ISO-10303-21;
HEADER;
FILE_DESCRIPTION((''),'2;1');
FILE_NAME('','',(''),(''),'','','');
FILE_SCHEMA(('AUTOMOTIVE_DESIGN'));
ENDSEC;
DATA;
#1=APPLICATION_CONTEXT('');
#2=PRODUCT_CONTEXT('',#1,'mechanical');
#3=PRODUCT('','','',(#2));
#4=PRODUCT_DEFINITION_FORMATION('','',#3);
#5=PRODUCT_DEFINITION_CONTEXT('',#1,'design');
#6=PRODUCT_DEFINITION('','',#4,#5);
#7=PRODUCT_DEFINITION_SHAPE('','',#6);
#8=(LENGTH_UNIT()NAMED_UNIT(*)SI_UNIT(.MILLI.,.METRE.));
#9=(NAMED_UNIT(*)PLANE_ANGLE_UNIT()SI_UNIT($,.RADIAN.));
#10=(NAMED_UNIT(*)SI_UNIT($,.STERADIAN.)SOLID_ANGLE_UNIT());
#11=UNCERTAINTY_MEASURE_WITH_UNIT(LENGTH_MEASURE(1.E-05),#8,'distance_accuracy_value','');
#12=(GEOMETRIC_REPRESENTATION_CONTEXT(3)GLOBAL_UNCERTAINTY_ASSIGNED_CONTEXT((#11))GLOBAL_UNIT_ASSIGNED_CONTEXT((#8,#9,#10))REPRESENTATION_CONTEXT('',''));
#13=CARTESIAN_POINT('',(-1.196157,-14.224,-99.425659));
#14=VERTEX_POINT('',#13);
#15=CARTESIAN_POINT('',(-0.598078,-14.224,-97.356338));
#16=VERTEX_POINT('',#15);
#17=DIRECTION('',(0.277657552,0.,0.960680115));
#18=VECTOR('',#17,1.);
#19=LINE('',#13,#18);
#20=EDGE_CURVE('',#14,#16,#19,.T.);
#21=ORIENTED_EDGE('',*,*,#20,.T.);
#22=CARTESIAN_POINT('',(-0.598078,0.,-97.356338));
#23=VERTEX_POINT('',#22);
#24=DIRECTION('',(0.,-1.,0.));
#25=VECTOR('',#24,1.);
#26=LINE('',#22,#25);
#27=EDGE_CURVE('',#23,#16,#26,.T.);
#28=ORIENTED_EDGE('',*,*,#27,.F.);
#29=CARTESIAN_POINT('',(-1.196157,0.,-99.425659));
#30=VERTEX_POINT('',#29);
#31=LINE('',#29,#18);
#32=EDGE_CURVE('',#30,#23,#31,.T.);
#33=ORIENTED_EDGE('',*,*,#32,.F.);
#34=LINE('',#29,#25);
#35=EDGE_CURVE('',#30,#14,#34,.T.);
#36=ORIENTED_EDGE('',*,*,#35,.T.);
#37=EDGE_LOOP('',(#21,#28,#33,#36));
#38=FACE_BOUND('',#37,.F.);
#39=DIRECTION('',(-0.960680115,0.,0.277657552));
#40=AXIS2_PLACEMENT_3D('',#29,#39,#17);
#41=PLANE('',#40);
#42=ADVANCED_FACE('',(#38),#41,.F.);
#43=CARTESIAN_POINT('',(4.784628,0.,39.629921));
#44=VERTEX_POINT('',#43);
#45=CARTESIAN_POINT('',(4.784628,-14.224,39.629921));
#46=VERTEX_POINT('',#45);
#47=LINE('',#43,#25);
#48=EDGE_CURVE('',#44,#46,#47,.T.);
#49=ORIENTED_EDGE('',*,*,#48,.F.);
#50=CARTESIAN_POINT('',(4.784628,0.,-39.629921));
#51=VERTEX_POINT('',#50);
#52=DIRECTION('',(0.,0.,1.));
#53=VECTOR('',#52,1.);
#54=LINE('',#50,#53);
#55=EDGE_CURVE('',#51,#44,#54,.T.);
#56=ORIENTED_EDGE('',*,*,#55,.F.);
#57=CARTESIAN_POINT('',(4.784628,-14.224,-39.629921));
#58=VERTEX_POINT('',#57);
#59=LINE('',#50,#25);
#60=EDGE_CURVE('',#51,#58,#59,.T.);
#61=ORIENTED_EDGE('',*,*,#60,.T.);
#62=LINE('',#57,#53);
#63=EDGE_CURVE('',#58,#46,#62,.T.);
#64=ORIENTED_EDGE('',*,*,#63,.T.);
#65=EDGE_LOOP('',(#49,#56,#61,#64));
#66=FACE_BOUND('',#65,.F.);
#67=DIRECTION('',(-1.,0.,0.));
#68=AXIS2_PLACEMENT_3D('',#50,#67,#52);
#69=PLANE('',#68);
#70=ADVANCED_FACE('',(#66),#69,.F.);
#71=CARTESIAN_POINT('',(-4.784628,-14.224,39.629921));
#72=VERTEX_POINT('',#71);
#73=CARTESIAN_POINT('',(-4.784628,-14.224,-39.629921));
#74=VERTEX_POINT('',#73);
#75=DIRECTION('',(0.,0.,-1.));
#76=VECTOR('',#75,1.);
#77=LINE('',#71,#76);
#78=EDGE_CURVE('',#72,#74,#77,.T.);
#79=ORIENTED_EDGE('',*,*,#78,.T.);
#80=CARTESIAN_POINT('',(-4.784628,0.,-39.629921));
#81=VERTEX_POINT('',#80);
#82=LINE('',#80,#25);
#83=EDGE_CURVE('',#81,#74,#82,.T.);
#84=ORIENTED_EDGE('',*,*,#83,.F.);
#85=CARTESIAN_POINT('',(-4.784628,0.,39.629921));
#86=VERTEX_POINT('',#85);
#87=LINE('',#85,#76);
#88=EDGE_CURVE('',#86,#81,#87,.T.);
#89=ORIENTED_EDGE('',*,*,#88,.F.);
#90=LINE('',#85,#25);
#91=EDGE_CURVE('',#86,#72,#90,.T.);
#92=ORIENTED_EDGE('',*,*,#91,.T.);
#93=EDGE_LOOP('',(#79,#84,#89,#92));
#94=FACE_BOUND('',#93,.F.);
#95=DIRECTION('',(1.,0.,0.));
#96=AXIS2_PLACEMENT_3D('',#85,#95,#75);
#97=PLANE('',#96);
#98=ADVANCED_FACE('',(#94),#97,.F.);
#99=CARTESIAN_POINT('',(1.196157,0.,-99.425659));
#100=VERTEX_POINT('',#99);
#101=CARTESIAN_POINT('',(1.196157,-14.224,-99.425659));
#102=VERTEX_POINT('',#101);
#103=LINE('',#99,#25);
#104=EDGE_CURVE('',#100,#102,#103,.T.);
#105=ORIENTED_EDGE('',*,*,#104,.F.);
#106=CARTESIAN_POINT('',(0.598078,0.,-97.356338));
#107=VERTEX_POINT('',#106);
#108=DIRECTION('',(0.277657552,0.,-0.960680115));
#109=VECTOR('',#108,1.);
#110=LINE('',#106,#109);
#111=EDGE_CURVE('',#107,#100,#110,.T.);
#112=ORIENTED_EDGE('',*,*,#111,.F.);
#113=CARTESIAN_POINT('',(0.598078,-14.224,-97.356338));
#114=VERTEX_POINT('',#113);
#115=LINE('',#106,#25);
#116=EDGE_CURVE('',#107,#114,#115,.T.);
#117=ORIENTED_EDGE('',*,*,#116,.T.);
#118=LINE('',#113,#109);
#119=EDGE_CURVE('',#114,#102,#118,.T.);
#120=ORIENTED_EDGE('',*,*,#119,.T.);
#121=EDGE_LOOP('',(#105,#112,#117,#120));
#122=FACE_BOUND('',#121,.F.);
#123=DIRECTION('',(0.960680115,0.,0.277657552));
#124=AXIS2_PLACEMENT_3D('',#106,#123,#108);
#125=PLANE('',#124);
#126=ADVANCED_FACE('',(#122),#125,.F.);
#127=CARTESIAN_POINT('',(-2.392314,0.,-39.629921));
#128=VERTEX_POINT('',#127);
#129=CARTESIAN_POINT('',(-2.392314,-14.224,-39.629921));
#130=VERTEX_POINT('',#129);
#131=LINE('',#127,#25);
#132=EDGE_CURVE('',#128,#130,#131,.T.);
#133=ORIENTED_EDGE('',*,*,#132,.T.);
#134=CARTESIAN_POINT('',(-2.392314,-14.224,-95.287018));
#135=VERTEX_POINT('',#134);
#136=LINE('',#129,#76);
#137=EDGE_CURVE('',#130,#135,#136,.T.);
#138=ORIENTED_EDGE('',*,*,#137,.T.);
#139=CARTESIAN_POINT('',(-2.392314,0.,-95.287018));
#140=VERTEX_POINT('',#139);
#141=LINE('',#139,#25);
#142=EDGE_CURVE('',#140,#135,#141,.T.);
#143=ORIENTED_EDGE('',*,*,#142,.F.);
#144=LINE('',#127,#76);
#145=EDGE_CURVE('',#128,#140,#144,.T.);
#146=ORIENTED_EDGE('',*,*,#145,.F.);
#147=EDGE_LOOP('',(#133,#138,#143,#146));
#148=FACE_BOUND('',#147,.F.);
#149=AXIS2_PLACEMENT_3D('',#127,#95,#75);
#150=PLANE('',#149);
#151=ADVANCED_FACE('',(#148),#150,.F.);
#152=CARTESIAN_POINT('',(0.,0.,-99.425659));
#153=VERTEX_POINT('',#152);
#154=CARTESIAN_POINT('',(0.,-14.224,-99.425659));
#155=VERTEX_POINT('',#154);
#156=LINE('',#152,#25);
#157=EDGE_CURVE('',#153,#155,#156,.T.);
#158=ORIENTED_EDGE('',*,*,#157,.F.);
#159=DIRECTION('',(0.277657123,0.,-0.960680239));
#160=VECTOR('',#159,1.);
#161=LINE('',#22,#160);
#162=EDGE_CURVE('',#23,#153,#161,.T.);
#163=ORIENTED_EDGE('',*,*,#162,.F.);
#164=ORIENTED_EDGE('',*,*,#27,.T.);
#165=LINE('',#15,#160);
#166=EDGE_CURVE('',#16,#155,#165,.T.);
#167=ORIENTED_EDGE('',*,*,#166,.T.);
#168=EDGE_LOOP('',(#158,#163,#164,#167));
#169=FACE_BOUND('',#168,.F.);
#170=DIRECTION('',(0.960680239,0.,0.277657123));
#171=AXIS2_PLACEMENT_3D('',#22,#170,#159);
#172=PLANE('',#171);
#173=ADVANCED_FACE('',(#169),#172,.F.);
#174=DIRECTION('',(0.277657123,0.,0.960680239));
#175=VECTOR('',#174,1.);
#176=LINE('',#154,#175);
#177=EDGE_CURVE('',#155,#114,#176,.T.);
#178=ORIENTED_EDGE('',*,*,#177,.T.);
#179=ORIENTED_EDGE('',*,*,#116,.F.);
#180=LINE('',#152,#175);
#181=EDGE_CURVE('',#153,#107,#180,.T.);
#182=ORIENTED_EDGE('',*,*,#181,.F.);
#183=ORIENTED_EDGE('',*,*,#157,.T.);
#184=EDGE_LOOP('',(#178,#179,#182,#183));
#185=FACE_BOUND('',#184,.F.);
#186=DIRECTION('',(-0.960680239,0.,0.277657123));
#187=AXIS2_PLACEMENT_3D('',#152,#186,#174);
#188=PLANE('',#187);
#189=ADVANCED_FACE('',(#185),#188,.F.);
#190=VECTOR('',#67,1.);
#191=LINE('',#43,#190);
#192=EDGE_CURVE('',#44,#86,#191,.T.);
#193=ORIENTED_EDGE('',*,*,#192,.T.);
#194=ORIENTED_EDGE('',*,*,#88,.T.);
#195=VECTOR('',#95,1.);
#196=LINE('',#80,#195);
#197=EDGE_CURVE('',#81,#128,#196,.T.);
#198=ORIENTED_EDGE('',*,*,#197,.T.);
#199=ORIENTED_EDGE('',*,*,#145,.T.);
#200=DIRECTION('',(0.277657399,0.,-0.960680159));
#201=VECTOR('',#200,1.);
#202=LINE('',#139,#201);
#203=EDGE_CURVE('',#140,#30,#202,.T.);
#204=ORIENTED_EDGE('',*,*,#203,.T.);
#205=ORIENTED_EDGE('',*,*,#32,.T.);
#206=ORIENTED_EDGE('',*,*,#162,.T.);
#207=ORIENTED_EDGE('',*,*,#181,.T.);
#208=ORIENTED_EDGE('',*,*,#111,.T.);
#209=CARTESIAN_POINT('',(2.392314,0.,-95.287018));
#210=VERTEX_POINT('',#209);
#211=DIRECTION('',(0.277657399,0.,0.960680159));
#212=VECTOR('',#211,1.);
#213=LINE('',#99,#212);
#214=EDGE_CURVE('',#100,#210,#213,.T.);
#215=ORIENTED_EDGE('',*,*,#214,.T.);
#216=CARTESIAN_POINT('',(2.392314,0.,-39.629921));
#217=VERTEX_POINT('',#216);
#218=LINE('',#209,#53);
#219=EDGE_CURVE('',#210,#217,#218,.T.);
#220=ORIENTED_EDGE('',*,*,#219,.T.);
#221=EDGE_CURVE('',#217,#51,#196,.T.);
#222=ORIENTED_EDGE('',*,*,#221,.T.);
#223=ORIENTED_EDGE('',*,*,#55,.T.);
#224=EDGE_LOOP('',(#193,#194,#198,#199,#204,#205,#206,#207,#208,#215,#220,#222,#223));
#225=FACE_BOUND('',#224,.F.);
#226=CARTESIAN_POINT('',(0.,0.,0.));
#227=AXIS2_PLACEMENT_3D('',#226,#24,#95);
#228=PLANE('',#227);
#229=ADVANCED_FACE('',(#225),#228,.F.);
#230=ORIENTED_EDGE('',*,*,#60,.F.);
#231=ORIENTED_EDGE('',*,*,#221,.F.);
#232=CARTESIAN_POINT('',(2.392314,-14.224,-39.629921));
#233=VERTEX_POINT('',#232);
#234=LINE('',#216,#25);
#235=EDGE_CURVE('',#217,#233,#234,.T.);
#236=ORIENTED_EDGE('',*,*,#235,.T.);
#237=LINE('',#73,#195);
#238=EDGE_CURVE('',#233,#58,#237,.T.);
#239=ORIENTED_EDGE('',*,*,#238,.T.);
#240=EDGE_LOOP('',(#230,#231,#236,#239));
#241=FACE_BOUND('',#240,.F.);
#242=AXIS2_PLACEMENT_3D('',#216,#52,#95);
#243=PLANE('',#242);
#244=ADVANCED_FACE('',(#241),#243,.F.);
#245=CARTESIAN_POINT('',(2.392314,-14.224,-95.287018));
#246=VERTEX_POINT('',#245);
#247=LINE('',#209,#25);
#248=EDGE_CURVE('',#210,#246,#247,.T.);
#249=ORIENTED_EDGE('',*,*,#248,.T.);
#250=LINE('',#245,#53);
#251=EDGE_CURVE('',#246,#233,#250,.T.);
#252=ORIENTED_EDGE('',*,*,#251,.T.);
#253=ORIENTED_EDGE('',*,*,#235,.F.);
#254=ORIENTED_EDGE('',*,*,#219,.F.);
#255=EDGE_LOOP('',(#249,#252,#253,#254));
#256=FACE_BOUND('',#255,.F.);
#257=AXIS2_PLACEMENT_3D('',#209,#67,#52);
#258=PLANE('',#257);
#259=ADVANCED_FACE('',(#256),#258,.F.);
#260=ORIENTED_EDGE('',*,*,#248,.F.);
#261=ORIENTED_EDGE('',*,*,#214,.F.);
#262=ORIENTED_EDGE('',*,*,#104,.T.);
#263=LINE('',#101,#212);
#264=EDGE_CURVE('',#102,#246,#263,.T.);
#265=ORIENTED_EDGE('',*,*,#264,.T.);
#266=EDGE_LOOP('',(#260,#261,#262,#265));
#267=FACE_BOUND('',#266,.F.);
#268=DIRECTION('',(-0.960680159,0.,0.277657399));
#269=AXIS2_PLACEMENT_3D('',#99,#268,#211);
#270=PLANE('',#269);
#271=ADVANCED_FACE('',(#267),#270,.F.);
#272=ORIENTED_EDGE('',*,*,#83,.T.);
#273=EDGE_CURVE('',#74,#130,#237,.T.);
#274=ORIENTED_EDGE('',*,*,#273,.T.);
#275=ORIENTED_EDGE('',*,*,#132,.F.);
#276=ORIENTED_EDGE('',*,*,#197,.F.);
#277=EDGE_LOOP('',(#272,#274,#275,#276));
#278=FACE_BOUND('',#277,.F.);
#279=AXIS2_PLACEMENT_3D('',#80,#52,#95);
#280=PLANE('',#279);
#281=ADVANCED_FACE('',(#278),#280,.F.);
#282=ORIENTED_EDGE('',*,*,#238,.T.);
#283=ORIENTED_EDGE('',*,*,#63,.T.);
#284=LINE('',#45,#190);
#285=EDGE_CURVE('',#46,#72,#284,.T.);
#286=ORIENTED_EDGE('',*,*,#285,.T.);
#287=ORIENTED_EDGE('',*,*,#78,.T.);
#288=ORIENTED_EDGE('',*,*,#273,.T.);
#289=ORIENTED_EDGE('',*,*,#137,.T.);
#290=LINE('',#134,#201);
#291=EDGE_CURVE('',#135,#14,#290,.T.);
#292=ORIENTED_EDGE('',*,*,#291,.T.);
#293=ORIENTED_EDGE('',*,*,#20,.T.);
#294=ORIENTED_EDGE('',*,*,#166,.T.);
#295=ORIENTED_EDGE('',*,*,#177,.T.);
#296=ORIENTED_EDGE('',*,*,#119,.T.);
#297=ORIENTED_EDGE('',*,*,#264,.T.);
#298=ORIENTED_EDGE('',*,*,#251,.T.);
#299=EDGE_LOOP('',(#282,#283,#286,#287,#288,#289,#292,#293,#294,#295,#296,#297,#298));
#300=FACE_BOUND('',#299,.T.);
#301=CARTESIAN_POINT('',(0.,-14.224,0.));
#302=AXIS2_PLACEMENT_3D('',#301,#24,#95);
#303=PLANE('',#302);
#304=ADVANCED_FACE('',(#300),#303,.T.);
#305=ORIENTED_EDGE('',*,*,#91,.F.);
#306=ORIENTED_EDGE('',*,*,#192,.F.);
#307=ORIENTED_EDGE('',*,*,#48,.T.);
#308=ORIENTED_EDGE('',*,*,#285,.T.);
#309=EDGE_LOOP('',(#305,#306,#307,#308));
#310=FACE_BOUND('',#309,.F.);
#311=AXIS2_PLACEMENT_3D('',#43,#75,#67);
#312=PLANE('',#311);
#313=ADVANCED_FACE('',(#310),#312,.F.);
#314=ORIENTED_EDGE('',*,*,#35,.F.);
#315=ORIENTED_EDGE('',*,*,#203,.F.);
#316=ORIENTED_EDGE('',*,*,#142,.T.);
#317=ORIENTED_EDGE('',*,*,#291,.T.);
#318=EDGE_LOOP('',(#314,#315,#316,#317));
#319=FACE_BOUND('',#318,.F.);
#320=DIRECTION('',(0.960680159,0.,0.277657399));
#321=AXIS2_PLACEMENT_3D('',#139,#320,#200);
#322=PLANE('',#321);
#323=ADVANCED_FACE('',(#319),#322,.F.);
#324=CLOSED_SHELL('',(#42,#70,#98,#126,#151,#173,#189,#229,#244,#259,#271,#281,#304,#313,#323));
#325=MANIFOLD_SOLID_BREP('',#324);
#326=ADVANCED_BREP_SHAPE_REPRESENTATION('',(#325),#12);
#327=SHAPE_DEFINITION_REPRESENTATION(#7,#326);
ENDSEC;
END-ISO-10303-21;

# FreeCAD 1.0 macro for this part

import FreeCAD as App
import Part
import Sketcher
Q = App.Units.Quantity


def add_polygon(sketch, points):
    """Adds a closed chain of lines whose ends are joined by coincident constraints."""
    first, n = sketch.GeometryCount, len(points)
    for a, b in zip(points, points[1:] + points[:1]):
        sketch.addGeometry(Part.LineSegment(App.Vector(*a, 0), App.Vector(*b, 0)), False)
    for i in range(n):
        sketch.addConstraint(Sketcher.Constraint("Coincident", first + i, 2, first + (i + 1) % n, 1))

doc = App.newDocument("Part")
body = doc.addObject("PartDesign::Body", "Body")

# Sketch on XZ plane
sketch1 = body.newObject("Sketcher::SketchObject", "Sketch")
sketch1.AttachmentSupport = (doc.getObject("XZ_Plane"), [""])
sketch1.MapMode = "FlatFace"
add_polygon(sketch1, [(4.8, 39.6), (-4.8, 39.6), (-4.8, -39.6), (-2.4, -39.6), (-2.4, -95.3), (-1.2, -99.4), (-0.6, -97.4), (0, -99.4), (0.6, -97.4), (1.2, -99.4), (2.4, -95.3), (2.4, -39.6), (4.8, -39.6)])  # lines 0-12
sketch1.addConstraint(Sketcher.Constraint("Horizontal", 0))
sketch1.addConstraint(Sketcher.Constraint("Vertical", 1))
sketch1.addConstraint(Sketcher.Constraint("Horizontal", 2))
sketch1.addConstraint(Sketcher.Constraint("Vertical", 3))
sketch1.addConstraint(Sketcher.Constraint("Vertical", 10))
sketch1.addConstraint(Sketcher.Constraint("Horizontal", 11))
sketch1.addConstraint(Sketcher.Constraint("Vertical", 12))
sketch1.addConstraint(Sketcher.Constraint("Symmetric", 0, 2, 11, 2, -1, 1))
sketch1.addConstraint(Sketcher.Constraint("Symmetric", 5, 2, 7, 2, -2))
sketch1.addConstraint(Sketcher.Constraint("Symmetric", 4, 2, 8, 2, -2))
sketch1.addConstraint(Sketcher.Constraint("Symmetric", 3, 2, 9, 2, -2))
sketch1.addConstraint(Sketcher.Constraint("PointOnObject", 6, 2, -2))
sketch1.addConstraint(Sketcher.Constraint("Parallel", 4, 6))
sketch1.addConstraint(Sketcher.Constraint("Parallel", 5, 7))
sketch1.addConstraint(Sketcher.Constraint("Horizontal", 4, 2, 6, 2))
sketch1.addConstraint(Sketcher.Constraint("Horizontal", 2, 2, 10, 2))
sketch1.addConstraint(Sketcher.Constraint("DistanceX", 0, 2, 0, 1, 9.569256))
sketch1.addConstraint(Sketcher.Constraint("DistanceX", 2, 1, 2, 2, 2.392314))
sketch1.addConstraint(Sketcher.Constraint("DistanceY", 1, 2, 1, 1, 79.259842))
sketch1.addConstraint(Sketcher.Constraint("DistanceY", 3, 2, 3, 1, 55.657097))
sketch1.addConstraint(Sketcher.Constraint("DistanceY", 4, 2, -1, 1, 99.425659))
sketch1.addConstraint(Sketcher.Constraint("DistanceX", 5, 2, -1, 1, 0.598078))
pad1 = body.newObject("PartDesign::Pad", "Pad")
pad1.Profile = sketch1
pad1.Length = Q("0.56 in")

doc.recompute()
